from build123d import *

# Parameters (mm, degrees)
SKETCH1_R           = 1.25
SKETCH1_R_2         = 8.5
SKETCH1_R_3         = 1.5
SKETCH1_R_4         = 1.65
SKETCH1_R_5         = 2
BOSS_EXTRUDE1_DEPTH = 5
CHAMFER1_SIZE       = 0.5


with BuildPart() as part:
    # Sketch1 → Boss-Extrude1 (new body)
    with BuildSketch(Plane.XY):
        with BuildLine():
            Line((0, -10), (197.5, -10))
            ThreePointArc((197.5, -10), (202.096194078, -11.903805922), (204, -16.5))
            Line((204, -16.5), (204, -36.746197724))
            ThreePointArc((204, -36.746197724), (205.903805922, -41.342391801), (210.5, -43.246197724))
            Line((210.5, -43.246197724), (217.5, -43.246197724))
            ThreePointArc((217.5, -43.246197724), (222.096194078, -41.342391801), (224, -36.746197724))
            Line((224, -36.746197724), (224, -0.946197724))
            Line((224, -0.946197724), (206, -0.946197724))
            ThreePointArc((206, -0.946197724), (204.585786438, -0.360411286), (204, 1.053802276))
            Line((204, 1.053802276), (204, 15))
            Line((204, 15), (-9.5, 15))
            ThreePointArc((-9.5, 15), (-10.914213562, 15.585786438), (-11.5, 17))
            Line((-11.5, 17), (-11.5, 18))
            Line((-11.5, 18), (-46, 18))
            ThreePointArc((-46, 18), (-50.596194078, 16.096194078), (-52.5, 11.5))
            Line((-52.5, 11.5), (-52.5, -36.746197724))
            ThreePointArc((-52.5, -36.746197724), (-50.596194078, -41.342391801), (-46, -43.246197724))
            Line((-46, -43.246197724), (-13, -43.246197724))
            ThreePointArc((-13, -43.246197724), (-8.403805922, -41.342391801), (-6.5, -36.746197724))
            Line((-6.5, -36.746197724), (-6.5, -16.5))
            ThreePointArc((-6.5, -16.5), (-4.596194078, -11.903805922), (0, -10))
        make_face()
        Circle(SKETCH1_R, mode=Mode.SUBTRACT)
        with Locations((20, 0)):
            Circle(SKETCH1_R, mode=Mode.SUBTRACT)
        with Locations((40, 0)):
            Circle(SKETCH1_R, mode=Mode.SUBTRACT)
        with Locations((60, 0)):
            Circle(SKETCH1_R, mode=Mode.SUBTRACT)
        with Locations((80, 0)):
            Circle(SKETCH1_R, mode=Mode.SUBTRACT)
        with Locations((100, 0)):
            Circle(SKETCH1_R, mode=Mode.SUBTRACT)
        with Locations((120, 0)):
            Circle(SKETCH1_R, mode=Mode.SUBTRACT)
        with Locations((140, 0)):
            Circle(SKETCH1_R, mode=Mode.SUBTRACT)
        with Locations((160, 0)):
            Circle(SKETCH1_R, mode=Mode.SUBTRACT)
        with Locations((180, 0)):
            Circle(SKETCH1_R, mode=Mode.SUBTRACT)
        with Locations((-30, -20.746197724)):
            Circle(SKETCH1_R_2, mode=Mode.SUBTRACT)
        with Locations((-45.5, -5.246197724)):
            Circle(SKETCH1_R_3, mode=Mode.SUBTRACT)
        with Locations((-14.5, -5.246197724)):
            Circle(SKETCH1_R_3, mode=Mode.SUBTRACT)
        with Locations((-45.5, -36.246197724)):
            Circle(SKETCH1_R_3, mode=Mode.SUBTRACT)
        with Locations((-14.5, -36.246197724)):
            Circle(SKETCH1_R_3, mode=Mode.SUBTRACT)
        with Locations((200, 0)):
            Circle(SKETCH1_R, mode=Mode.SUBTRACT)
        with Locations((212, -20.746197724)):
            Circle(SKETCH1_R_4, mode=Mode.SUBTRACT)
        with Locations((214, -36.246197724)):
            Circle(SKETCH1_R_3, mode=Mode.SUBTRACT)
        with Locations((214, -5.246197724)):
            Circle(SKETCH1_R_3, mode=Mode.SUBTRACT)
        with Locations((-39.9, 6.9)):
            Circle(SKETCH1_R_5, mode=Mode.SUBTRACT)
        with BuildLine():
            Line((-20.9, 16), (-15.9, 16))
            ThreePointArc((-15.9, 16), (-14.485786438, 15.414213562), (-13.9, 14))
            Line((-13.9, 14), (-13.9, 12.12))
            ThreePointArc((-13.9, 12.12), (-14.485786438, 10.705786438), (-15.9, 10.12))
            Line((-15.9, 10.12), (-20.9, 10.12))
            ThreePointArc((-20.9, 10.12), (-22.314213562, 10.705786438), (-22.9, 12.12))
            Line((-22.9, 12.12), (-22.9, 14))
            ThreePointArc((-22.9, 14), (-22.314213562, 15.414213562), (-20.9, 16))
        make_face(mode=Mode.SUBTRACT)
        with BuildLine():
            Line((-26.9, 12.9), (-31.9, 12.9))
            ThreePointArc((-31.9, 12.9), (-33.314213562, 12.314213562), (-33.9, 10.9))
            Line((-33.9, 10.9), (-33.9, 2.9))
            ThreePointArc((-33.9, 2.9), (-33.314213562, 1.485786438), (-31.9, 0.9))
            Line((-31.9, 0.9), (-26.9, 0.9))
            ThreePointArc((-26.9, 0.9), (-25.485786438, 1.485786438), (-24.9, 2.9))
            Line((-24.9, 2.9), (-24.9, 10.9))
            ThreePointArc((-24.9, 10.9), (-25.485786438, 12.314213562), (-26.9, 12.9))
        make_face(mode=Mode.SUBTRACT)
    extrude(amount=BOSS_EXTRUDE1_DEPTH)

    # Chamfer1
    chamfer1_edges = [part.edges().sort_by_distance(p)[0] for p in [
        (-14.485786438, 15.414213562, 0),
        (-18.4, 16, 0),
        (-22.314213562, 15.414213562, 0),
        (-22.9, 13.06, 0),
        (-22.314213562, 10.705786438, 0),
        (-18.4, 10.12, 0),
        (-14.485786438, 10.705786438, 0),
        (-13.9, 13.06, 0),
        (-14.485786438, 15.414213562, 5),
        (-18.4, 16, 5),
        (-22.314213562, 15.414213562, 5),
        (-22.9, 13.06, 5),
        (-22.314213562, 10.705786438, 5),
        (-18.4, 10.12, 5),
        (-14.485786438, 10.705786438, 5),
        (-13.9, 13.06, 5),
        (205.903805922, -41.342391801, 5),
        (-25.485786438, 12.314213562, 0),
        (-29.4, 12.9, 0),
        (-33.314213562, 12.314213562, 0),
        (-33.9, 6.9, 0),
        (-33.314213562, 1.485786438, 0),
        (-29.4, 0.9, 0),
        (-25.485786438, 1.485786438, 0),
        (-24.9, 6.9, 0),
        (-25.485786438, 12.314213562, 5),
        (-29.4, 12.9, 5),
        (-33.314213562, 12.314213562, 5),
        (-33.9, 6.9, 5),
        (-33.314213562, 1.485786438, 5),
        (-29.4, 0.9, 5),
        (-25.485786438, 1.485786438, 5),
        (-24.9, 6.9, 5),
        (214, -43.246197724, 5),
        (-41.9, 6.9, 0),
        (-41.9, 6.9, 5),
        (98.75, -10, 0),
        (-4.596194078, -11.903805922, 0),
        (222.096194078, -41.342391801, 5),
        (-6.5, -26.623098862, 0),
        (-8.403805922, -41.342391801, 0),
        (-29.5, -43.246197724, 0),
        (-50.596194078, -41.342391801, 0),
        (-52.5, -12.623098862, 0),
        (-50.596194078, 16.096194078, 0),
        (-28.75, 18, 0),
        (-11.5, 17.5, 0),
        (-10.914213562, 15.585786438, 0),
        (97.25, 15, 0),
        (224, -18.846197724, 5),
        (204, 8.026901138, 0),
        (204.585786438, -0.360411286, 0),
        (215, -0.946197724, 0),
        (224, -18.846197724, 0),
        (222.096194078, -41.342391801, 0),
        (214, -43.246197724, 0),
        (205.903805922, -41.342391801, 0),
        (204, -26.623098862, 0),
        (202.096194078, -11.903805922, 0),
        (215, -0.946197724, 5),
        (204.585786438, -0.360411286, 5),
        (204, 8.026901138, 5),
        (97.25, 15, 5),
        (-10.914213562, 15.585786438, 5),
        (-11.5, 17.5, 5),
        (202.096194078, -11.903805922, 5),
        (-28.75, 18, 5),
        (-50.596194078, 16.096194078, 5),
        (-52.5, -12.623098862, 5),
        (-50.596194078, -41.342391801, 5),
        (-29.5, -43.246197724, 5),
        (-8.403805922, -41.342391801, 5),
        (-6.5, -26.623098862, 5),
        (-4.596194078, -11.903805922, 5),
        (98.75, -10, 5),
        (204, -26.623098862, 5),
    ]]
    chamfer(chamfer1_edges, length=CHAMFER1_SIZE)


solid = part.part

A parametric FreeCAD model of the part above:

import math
import FreeCAD as App
import Part
import Sketcher

V = App.Vector


def edges_at(feature, points):
    """Names of the edges that pass closest to the given points."""
    edges = feature.Shape.Edges
    near = lambda p: min(range(len(edges)), key=lambda i: edges[i].distToShape(Part.Vertex(*p))[0])
    return sorted({f"Edge{near(p) + 1}" for p in points})

doc = App.newDocument("Part")
params = doc.addObject("Spreadsheet::Sheet", "Params")
for row, (alias, value) in enumerate([
    ("sketch1_diameter", "3 mm"),
    ("sketch1_diameter2", "17 mm"),
    ("sketch1_diameter3", "4 mm"),
    ("sketch1_diameter4", "3.3 mm"),
    ("sketch1_diameter5", "2.5 mm"),
    ("pad1_length", "5 mm"),
    ("chamfer_size", "0.5 mm"),
], start=1):
    params.set(f"A{row}", alias)
    params.set(f"B{row}", "=" + value)
    params.setAlias(f"B{row}", alias)

body = doc.addObject("PartDesign::Body", "Body")

sketch1 = body.newObject("Sketcher::SketchObject", "Sketch")
sketch1.AttachmentSupport = (doc.getObject("XY_Plane"), [""])
sketch1.MapMode = "FlatFace"
sketch1.addGeometry(Part.LineSegment(V(0, -10, 0), V(197.5, -10, 0)), False)
sketch1.addGeometry(Part.ArcOfCircle(Part.Circle(V(197.5, -16.5, 0), V(0, 0, 1), 6.5), math.radians(0), math.radians(90)), False)
sketch1.addGeometry(Part.LineSegment(V(204, -16.5, 0), V(204, -36.7, 0)), False)
sketch1.addGeometry(Part.ArcOfCircle(Part.Circle(V(210.5, -36.7, 0), V(0, 0, 1), 6.5), math.radians(-180), math.radians(-90)), False)
sketch1.addGeometry(Part.LineSegment(V(210.5, -43.2, 0), V(217.5, -43.2, 0)), False)
sketch1.addGeometry(Part.ArcOfCircle(Part.Circle(V(217.5, -36.7, 0), V(0, 0, 1), 6.5), math.radians(-90), math.radians(0)), False)
sketch1.addGeometry(Part.LineSegment(V(224, -36.7, 0), V(224, -0.9, 0)), False)
sketch1.addGeometry(Part.LineSegment(V(224, -0.9, 0), V(206, -0.9, 0)), False)
sketch1.addGeometry(Part.ArcOfCircle(Part.Circle(V(206, 1.1, 0), V(0, 0, 1), 2), math.radians(-180), math.radians(-90)), False)
sketch1.addGeometry(Part.LineSegment(V(204, 1.1, 0), V(204, 15, 0)), False)
sketch1.addGeometry(Part.LineSegment(V(204, 15, 0), V(-9.5, 15, 0)), False)
sketch1.addGeometry(Part.ArcOfCircle(Part.Circle(V(-9.5, 17, 0), V(0, 0, 1), 2), math.radians(-180), math.radians(-90)), False)
sketch1.addGeometry(Part.LineSegment(V(-11.5, 17, 0), V(-11.5, 18, 0)), False)
sketch1.addGeometry(Part.LineSegment(V(-11.5, 18, 0), V(-46, 18, 0)), False)
sketch1.addGeometry(Part.ArcOfCircle(Part.Circle(V(-46, 11.5, 0), V(0, 0, 1), 6.5), math.radians(90), math.radians(180)), False)
sketch1.addGeometry(Part.LineSegment(V(-52.5, 11.5, 0), V(-52.5, -36.7, 0)), False)
sketch1.addGeometry(Part.ArcOfCircle(Part.Circle(V(-46, -36.7, 0), V(0, 0, 1), 6.5), math.radians(-180), math.radians(-90)), False)
sketch1.addGeometry(Part.LineSegment(V(-46, -43.2, 0), V(-13, -43.2, 0)), False)
sketch1.addGeometry(Part.ArcOfCircle(Part.Circle(V(-13, -36.7, 0), V(0, 0, 1), 6.5), math.radians(-90), math.radians(0)), False)
sketch1.addGeometry(Part.LineSegment(V(-6.5, -36.7, 0), V(-6.5, -16.5, 0)), False)
sketch1.addGeometry(Part.ArcOfCircle(Part.Circle(V(0, -16.5, 0), V(0, 0, 1), 6.5), math.radians(90), math.radians(180)), False)
sketch1.addGeometry(Part.Circle(V(-45.5, -36.2, 0), V(0, 0, 1), 1.5), False)
sketch1.addGeometry(Part.Circle(V(-14.5, -36.2, 0), V(0, 0, 1), 1.5), False)
sketch1.addGeometry(Part.Circle(V(-30, -20.7, 0), V(0, 0, 1), 8.5), False)
sketch1.addGeometry(Part.Circle(V(214, -36.2, 0), V(0, 0, 1), 1.5), False)
sketch1.addGeometry(Part.Circle(V(212, -20.7, 0), V(0, 0, 1), 1.6), False)
sketch1.addGeometry(Part.Circle(V(-45.5, -5.2, 0), V(0, 0, 1), 1.5), False)
sketch1.addGeometry(Part.Circle(V(-14.5, -5.2, 0), V(0, 0, 1), 1.5), False)
sketch1.addGeometry(Part.Circle(V(0, 0, 0), V(0, 0, 1), 1.2), False)
sketch1.addGeometry(Part.Circle(V(20, 0, 0), V(0, 0, 1), 1.2), False)
sketch1.addGeometry(Part.Circle(V(40, 0, 0), V(0, 0, 1), 1.2), False)
sketch1.addGeometry(Part.Circle(V(60, 0, 0), V(0, 0, 1), 1.2), False)
sketch1.addGeometry(Part.Circle(V(80, 0, 0), V(0, 0, 1), 1.2), False)
sketch1.addGeometry(Part.Circle(V(-39.9, 6.9, 0), V(0, 0, 1), 2), False)
sketch1.addGeometry(Part.LineSegment(V(-31.9, 12.9, 0), V(-26.9, 12.9, 0)), False)
sketch1.addGeometry(Part.ArcOfCircle(Part.Circle(V(-26.9, 10.9, 0), V(0, 0, 1), 2), math.radians(0), math.radians(90)), False)
sketch1.addGeometry(Part.LineSegment(V(-24.9, 10.9, 0), V(-24.9, 2.9, 0)), False)
sketch1.addGeometry(Part.ArcOfCircle(Part.Circle(V(-26.9, 2.9, 0), V(0, 0, 1), 2), math.radians(-90), math.radians(0)), False)
sketch1.addGeometry(Part.LineSegment(V(-26.9, 0.9, 0), V(-31.9, 0.9, 0)), False)
sketch1.addGeometry(Part.ArcOfCircle(Part.Circle(V(-31.9, 2.9, 0), V(0, 0, 1), 2), math.radians(-180), math.radians(-90)), False)
sketch1.addGeometry(Part.LineSegment(V(-33.9, 2.9, 0), V(-33.9, 10.9, 0)), False)
sketch1.addGeometry(Part.ArcOfCircle(Part.Circle(V(-31.9, 10.9, 0), V(0, 0, 1), 2), math.radians(90), math.radians(180)), False)
sketch1.addGeometry(Part.ArcOfCircle(Part.Circle(V(-20.9, 14, 0), V(0, 0, 1), 2), math.radians(90), math.radians(180)), False)
sketch1.addGeometry(Part.LineSegment(V(-20.9, 16, 0), V(-15.9, 16, 0)), False)
sketch1.addGeometry(Part.ArcOfCircle(Part.Circle(V(-15.9, 14, 0), V(0, 0, 1), 2), math.radians(0), math.radians(90)), False)
sketch1.addGeometry(Part.LineSegment(V(-13.9, 14, 0), V(-13.9, 12.1, 0)), False)
sketch1.addGeometry(Part.ArcOfCircle(Part.Circle(V(-15.9, 12.1, 0), V(0, 0, 1), 2), math.radians(-90), math.radians(0)), False)
sketch1.addGeometry(Part.LineSegment(V(-15.9, 10.1, 0), V(-20.9, 10.1, 0)), False)
sketch1.addGeometry(Part.ArcOfCircle(Part.Circle(V(-20.9, 12.1, 0), V(0, 0, 1), 2), math.radians(-180), math.radians(-90)), False)
sketch1.addGeometry(Part.LineSegment(V(-22.9, 12.1, 0), V(-22.9, 14, 0)), False)
sketch1.addGeometry(Part.Circle(V(100, 0, 0), V(0, 0, 1), 1.2), False)
sketch1.addGeometry(Part.Circle(V(120, 0, 0), V(0, 0, 1), 1.2), False)
sketch1.addGeometry(Part.Circle(V(140, 0, 0), V(0, 0, 1), 1.2), False)
sketch1.addGeometry(Part.Circle(V(214, -5.2, 0), V(0, 0, 1), 1.5), False)
sketch1.addGeometry(Part.Circle(V(160, 0, 0), V(0, 0, 1), 1.2), False)
sketch1.addGeometry(Part.Circle(V(180, 0, 0), V(0, 0, 1), 1.2), False)
sketch1.addGeometry(Part.Circle(V(200, 0, 0), V(0, 0, 1), 1.2), False)
sketch1.addConstraint(Sketcher.Constraint("Tangent", 0, 2, 1, 2))
sketch1.addConstraint(Sketcher.Constraint("Tangent", 1, 1, 2, 1))
sketch1.addConstraint(Sketcher.Constraint("Tangent", 2, 2, 3, 1))
sketch1.addConstraint(Sketcher.Constraint("Tangent", 3, 2, 4, 1))
sketch1.addConstraint(Sketcher.Constraint("Tangent", 4, 2, 5, 1))
sketch1.addConstraint(Sketcher.Constraint("Tangent", 5, 2, 6, 1))
sketch1.addConstraint(Sketcher.Constraint("Coincident", 6, 2, 7, 1))
sketch1.addConstraint(Sketcher.Constraint("Tangent", 7, 2, 8, 2))
sketch1.addConstraint(Sketcher.Constraint("Tangent", 8, 1, 9, 1))
sketch1.addConstraint(Sketcher.Constraint("Coincident", 9, 2, 10, 1))
sketch1.addConstraint(Sketcher.Constraint("Tangent", 10, 2, 11, 2))
sketch1.addConstraint(Sketcher.Constraint("Tangent", 11, 1, 12, 1))
sketch1.addConstraint(Sketcher.Constraint("Coincident", 12, 2, 13, 1))
sketch1.addConstraint(Sketcher.Constraint("Tangent", 13, 2, 14, 1))
sketch1.addConstraint(Sketcher.Constraint("Tangent", 14, 2, 15, 1))
sketch1.addConstraint(Sketcher.Constraint("Tangent", 15, 2, 16, 1))
sketch1.addConstraint(Sketcher.Constraint("Tangent", 16, 2, 17, 1))
sketch1.addConstraint(Sketcher.Constraint("Tangent", 17, 2, 18, 1))
sketch1.addConstraint(Sketcher.Constraint("Tangent", 18, 2, 19, 1))
sketch1.addConstraint(Sketcher.Constraint("Tangent", 19, 2, 20, 2))
sketch1.addConstraint(Sketcher.Constraint("Tangent", 20, 1, 0, 1))
sketch1.addConstraint(Sketcher.Constraint("Tangent", 34, 2, 35, 2))
sketch1.addConstraint(Sketcher.Constraint("Tangent", 35, 1, 36, 1))
sketch1.addConstraint(Sketcher.Constraint("Tangent", 36, 2, 37, 2))
sketch1.addConstraint(Sketcher.Constraint("Tangent", 37, 1, 38, 1))
sketch1.addConstraint(Sketcher.Constraint("Tangent", 38, 2, 39, 2))
sketch1.addConstraint(Sketcher.Constraint("Tangent", 39, 1, 40, 1))
sketch1.addConstraint(Sketcher.Constraint("Tangent", 40, 2, 41, 2))
sketch1.addConstraint(Sketcher.Constraint("Tangent", 41, 1, 34, 1))
sketch1.addConstraint(Sketcher.Constraint("Tangent", 42, 1, 43, 1))
sketch1.addConstraint(Sketcher.Constraint("Tangent", 43, 2, 44, 2))
sketch1.addConstraint(Sketcher.Constraint("Tangent", 44, 1, 45, 1))
sketch1.addConstraint(Sketcher.Constraint("Tangent", 45, 2, 46, 2))
sketch1.addConstraint(Sketcher.Constraint("Tangent", 46, 1, 47, 1))
sketch1.addConstraint(Sketcher.Constraint("Tangent", 47, 2, 48, 2))
sketch1.addConstraint(Sketcher.Constraint("Tangent", 48, 1, 49, 1))
sketch1.addConstraint(Sketcher.Constraint("Tangent", 49, 2, 42, 2))
sketch1.addConstraint(Sketcher.Constraint("Horizontal", 0))
sketch1.addConstraint(Sketcher.Constraint("Vertical", 2))
sketch1.addConstraint(Sketcher.Constraint("Horizontal", 4))
sketch1.addConstraint(Sketcher.Constraint("Vertical", 6))
sketch1.addConstraint(Sketcher.Constraint("Horizontal", 7))
sketch1.addConstraint(Sketcher.Constraint("Vertical", 9))
sketch1.addConstraint(Sketcher.Constraint("Horizontal", 10))
sketch1.addConstraint(Sketcher.Constraint("Vertical", 12))
sketch1.addConstraint(Sketcher.Constraint("Horizontal", 13))
sketch1.addConstraint(Sketcher.Constraint("Vertical", 15))
sketch1.addConstraint(Sketcher.Constraint("Horizontal", 17))
sketch1.addConstraint(Sketcher.Constraint("Vertical", 19))
sketch1.addConstraint(Sketcher.Constraint("Horizontal", 34))
sketch1.addConstraint(Sketcher.Constraint("Vertical", 36))
sketch1.addConstraint(Sketcher.Constraint("Horizontal", 38))
sketch1.addConstraint(Sketcher.Constraint("Vertical", 40))
sketch1.addConstraint(Sketcher.Constraint("Horizontal", 43))
sketch1.addConstraint(Sketcher.Constraint("Vertical", 45))
sketch1.addConstraint(Sketcher.Constraint("Horizontal", 47))
sketch1.addConstraint(Sketcher.Constraint("Vertical", 49))
sketch1.addConstraint(Sketcher.Constraint("Coincident", 28, 3, -1, 1))
sketch1.addConstraint(Sketcher.Constraint("Equal", 1, 3))
sketch1.addConstraint(Sketcher.Constraint("Equal", 3, 5))
sketch1.addConstraint(Sketcher.Constraint("Equal", 8, 11))
sketch1.addConstraint(Sketcher.Constraint("Equal", 5, 14))
sketch1.addConstraint(Sketcher.Constraint("Equal", 14, 16))
sketch1.addConstraint(Sketcher.Constraint("Equal", 16, 18))
sketch1.addConstraint(Sketcher.Constraint("Equal", 18, 20))
sketch1.addConstraint(Sketcher.Constraint("Equal", 21, 22))
sketch1.addConstraint(Sketcher.Constraint("Equal", 22, 24))
sketch1.addConstraint(Sketcher.Constraint("Equal", 24, 26))
sketch1.addConstraint(Sketcher.Constraint("Equal", 26, 27))
sketch1.addConstraint(Sketcher.Constraint("Equal", 28, 29))
sketch1.addConstraint(Sketcher.Constraint("Equal", 29, 30))
sketch1.addConstraint(Sketcher.Constraint("Equal", 30, 31))
sketch1.addConstraint(Sketcher.Constraint("Equal", 31, 32))
sketch1.addConstraint(Sketcher.Constraint("Equal", 11, 33))
sketch1.addConstraint(Sketcher.Constraint("Equal", 33, 35))
sketch1.addConstraint(Sketcher.Constraint("Equal", 35, 37))
sketch1.addConstraint(Sketcher.Constraint("Equal", 37, 39))
sketch1.addConstraint(Sketcher.Constraint("Equal", 39, 41))
sketch1.addConstraint(Sketcher.Constraint("Equal", 41, 42))
sketch1.addConstraint(Sketcher.Constraint("Equal", 42, 44))
sketch1.addConstraint(Sketcher.Constraint("Equal", 44, 46))
sketch1.addConstraint(Sketcher.Constraint("Equal", 46, 48))
sketch1.addConstraint(Sketcher.Constraint("Equal", 32, 50))
sketch1.addConstraint(Sketcher.Constraint("Equal", 50, 51))
sketch1.addConstraint(Sketcher.Constraint("Equal", 51, 52))
sketch1.addConstraint(Sketcher.Constraint("Equal", 27, 53))
sketch1.addConstraint(Sketcher.Constraint("Equal", 52, 54))
sketch1.addConstraint(Sketcher.Constraint("Equal", 54, 55))
sketch1.addConstraint(Sketcher.Constraint("Equal", 55, 56))
sketch1.addConstraint(Sketcher.Constraint("PointOnObject", 20, 3, -2))
sketch1.addConstraint(Sketcher.Constraint("PointOnObject", 29, 3, -1))
sketch1.addConstraint(Sketcher.Constraint("PointOnObject", 30, 3, -1))
sketch1.addConstraint(Sketcher.Constraint("PointOnObject", 31, 3, -1))
sketch1.addConstraint(Sketcher.Constraint("PointOnObject", 32, 3, -1))
sketch1.addConstraint(Sketcher.Constraint("PointOnObject", 50, 3, -1))
sketch1.addConstraint(Sketcher.Constraint("PointOnObject", 51, 3, -1))
sketch1.addConstraint(Sketcher.Constraint("PointOnObject", 52, 3, -1))
sketch1.addConstraint(Sketcher.Constraint("PointOnObject", 54, 3, -1))
sketch1.addConstraint(Sketcher.Constraint("PointOnObject", 55, 3, -1))
sketch1.addConstraint(Sketcher.Constraint("PointOnObject", 56, 3, -1))
sketch1.addConstraint(Sketcher.Constraint("Horizontal", 5, 3, 16, 3))
sketch1.addConstraint(Sketcher.Constraint("Horizontal", 21, 3, 22, 3))
sketch1.addConstraint(Sketcher.Constraint("Horizontal", 22, 3, 24, 3))
sketch1.addConstraint(Sketcher.Constraint("Horizontal", 23, 3, 25, 3))
sketch1.addConstraint(Sketcher.Constraint("Horizontal", 26, 3, 27, 3))
sketch1.addConstraint(Sketcher.Constraint("Horizontal", 27, 3, 53, 3))
sketch1.addConstraint(Sketcher.Constraint("Vertical", 21, 3, 26, 3))
sketch1.addConstraint(Sketcher.Constraint("Vertical", 22, 3, 27, 3))
sketch1.addConstraint(Sketcher.Constraint("Vertical", 24, 3, 53, 3))
sketch1.addConstraint(Sketcher.Constraint("Vertical", 2, 2, 8, 1))
sketch1.addConstraint(Sketcher.Constraint("Equal", 38, 43))
sketch1.addConstraint(Sketcher.Constraint("Diameter", 21, 3.0))
sketch1.addConstraint(Sketcher.Constraint("Diameter", 23, 17.0))
sketch1.addConstraint(Sketcher.Constraint("Diameter", 33, 4.0))
sketch1.addConstraint(Sketcher.Constraint("Diameter", 25, 3.3))
sketch1.addConstraint(Sketcher.Constraint("Diameter", 28, 2.5))
sketch1.addConstraint(Sketcher.Constraint("Radius", 1, 6.5))
sketch1.addConstraint(Sketcher.Constraint("DistanceX", 4, 1, 4, 2, 7.0))
sketch1.addConstraint(Sketcher.Constraint("DistanceX", 17, 1, 17, 2, 33.0))
sketch1.addConstraint(Sketcher.Constraint("DistanceX", 34, 1, 34, 2, 5.0))
sketch1.addConstraint(Sketcher.Constraint("DistanceY", 12, 1, 12, 2, 1.0))
sketch1.addConstraint(Sketcher.Constraint("DistanceY", 36, 2, 36, 1, 8.0))
sketch1.addConstraint(Sketcher.Constraint("DistanceX", 0, 1, 0, 2, 197.5))
sketch1.addConstraint(Sketcher.Constraint("DistanceX", 10, 2, 10, 1, 213.5))
sketch1.addConstraint(Sketcher.Constraint("DistanceY", 6, 1, 6, 2, 35.8))
sketch1.addConstraint(Sketcher.Constraint("DistanceY", -1, 1, 11, 3, 17.0))
sketch1.addConstraint(Sketcher.Constraint("DistanceX", 23, 3, -1, 1, 30.0))
sketch1.addConstraint(Sketcher.Constraint("DistanceX", -1, 1, 24, 3, 214.0))
sketch1.addConstraint(Sketcher.Constraint("DistanceX", -1, 1, 25, 3, 212.0))
sketch1.addConstraint(Sketcher.Constraint("DistanceX", -1, 1, 29, 3, 20.0))
sketch1.addConstraint(Sketcher.Constraint("DistanceX", -1, 1, 30, 3, 40.0))
sketch1.addConstraint(Sketcher.Constraint("DistanceX", -1, 1, 31, 3, 60.0))
sketch1.addConstraint(Sketcher.Constraint("DistanceX", -1, 1, 32, 3, 80.0))
sketch1.addConstraint(Sketcher.Constraint("DistanceY", -1, 1, 42, 3, 14.0))
sketch1.addConstraint(Sketcher.Constraint("DistanceX", -1, 1, 50, 3, 100.0))
sketch1.addConstraint(Sketcher.Constraint("DistanceX", -1, 1, 51, 3, 120.0))
sketch1.addConstraint(Sketcher.Constraint("DistanceX", -1, 1, 52, 3, 140.0))
sketch1.addConstraint(Sketcher.Constraint("DistanceX", -1, 1, 54, 3, 160.0))
sketch1.addConstraint(Sketcher.Constraint("DistanceX", -1, 1, 55, 3, 180.0))
sketch1.addConstraint(Sketcher.Constraint("DistanceX", -1, 1, 56, 3, 200.0))
sketch1.addConstraint(Sketcher.Constraint("DistanceY", 0, 2, -1, 1, 10.0))
sketch1.addConstraint(Sketcher.Constraint("DistanceY", 45, 2, 45, 1, 1.88))
sketch1.addConstraint(Sketcher.Constraint("DistanceX", 21, 3, -1, 1, 45.5))
sketch1.addConstraint(Sketcher.Constraint("DistanceX", 22, 3, -1, 1, 14.5))
sketch1.addConstraint(Sketcher.Constraint("DistanceX", 33, 3, -1, 1, 39.9))
sketch1.addConstraint(Sketcher.Constraint("DistanceY", -1, 1, 33, 3, 6.9))
sketch1.addConstraint(Sketcher.Constraint("DistanceX", 35, 3, -1, 1, 26.9))
sketch1.addConstraint(Sketcher.Constraint("DistanceY", -1, 1, 35, 3, 10.9))
sketch1.addConstraint(Sketcher.Constraint("DistanceX", 42, 3, -1, 1, 20.9))
sketch1.addConstraint(Sketcher.Constraint("DistanceY", 2, 2, 2, 1, 20.246198))
sketch1.addConstraint(Sketcher.Constraint("DistanceY", 21, 3, -1, 1, 36.246198))
sketch1.addConstraint(Sketcher.Constraint("DistanceY", 23, 3, -1, 1, 20.746198))
sketch1.addConstraint(Sketcher.Constraint("DistanceY", 26, 3, -1, 1, 5.246198))
sketch1.setExpression("Constraints[111]", "Params.sketch1_diameter")
sketch1.setExpression("Constraints[112]", "Params.sketch1_diameter2")
sketch1.setExpression("Constraints[113]", "Params.sketch1_diameter3")
sketch1.setExpression("Constraints[114]", "Params.sketch1_diameter4")
sketch1.setExpression("Constraints[115]", "Params.sketch1_diameter5")
pad1 = body.newObject("PartDesign::Pad", "Pad")
pad1.Profile = sketch1
pad1.setExpression("Length", "Params.pad1_length")
doc.recompute()

chamfer = body.newObject("PartDesign::Chamfer", "Chamfer")
chamfer.Base = (pad1, edges_at(pad1, [
    (-14.486, 15.414, 0),
    (-18.4, 16, 0),
    (-22.314, 15.414, 0),
    (-22.9, 13.06, 0),
    (-22.314, 10.706, 0),
    (-18.4, 10.12, 0),
    (-14.486, 10.706, 0),
    (-13.9, 13.06, 0),
    (-14.486, 15.414, 5),
    (-18.4, 16, 5),
    (-22.314, 15.414, 5),
    (-22.9, 13.06, 5),
    (-22.314, 10.706, 5),
    (-18.4, 10.12, 5),
    (-14.486, 10.706, 5),
    (-13.9, 13.06, 5),
    (205.904, -41.342, 5),
    (-25.486, 12.314, 0),
    (-29.4, 12.9, 0),
    (-33.314, 12.314, 0),
    (-33.9, 6.9, 0),
    (-33.314, 1.486, 0),
    (-29.4, 0.9, 0),
    (-25.486, 1.486, 0),
    (-24.9, 6.9, 0),
    (-25.486, 12.314, 5),
    (-29.4, 12.9, 5),
    (-33.314, 12.314, 5),
    (-33.9, 6.9, 5),
    (-33.314, 1.486, 5),
    (-29.4, 0.9, 5),
    (-25.486, 1.486, 5),
    (-24.9, 6.9, 5),
    (214, -43.246, 5),
    (-41.9, 6.9, 0),
    (-41.9, 6.9, 5),
    (98.75, -10, 0),
    (-4.596, -11.904, 0),
    (222.096, -41.342, 5),
    (-6.5, -26.623, 0),
    (-8.404, -41.342, 0),
    (-29.5, -43.246, 0),
    (-50.596, -41.342, 0),
    (-52.5, -12.623, 0),
    (-50.596, 16.096, 0),
    (-28.75, 18, 0),
    (-11.5, 17.5, 0),
    (-10.914, 15.586, 0),
    (97.25, 15, 0),
    (224, -18.846, 5),
    (204, 8.027, 0),
    (204.586, -0.36, 0),
    (215, -0.946, 0),
    (224, -18.846, 0),
    (222.096, -41.342, 0),
    (214, -43.246, 0),
    (205.904, -41.342, 0),
    (204, -26.623, 0),
    (202.096, -11.904, 0),
    (215, -0.946, 5),
    (204.586, -0.36, 5),
    (204, 8.027, 5),
    (97.25, 15, 5),
    (-10.914, 15.586, 5),
    (-11.5, 17.5, 5),
    (202.096, -11.904, 5),
    (-28.75, 18, 5),
    (-50.596, 16.096, 5),
    (-52.5, -12.623, 5),
    (-50.596, -41.342, 5),
    (-29.5, -43.246, 5),
    (-8.404, -41.342, 5),
    (-6.5, -26.623, 5),
    (-4.596, -11.904, 5),
    (98.75, -10, 5),
    (204, -26.623, 5),
]))
chamfer.setExpression("Size", "Params.chamfer_size")

doc.recompute()
